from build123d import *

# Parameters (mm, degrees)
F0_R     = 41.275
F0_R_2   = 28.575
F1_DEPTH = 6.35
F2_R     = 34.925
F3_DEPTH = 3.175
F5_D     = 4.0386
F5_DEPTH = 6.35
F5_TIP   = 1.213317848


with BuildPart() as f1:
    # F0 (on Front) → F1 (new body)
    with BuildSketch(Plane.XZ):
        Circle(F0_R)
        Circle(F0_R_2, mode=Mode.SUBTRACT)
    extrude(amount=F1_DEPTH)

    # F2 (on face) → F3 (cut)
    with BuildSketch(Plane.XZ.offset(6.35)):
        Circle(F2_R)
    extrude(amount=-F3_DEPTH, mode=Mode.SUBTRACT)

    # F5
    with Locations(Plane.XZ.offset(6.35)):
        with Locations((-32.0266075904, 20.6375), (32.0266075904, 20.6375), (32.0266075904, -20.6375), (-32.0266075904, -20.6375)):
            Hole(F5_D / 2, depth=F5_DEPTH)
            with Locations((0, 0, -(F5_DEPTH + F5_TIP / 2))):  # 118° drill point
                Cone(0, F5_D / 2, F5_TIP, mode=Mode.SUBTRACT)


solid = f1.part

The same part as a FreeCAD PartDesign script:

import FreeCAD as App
import Part
import Sketcher
from FreeCAD import Vector
Q = App.Units.Quantity

doc = App.newDocument("Part")
body = doc.addObject("PartDesign::Body", "Body")

# Sketch on XZ plane
sketch1 = doc.addObject("Sketcher::SketchObject", "Sketch")
body.addObject(sketch1)
sketch1.AttachmentSupport = (doc.XZ_Plane, [""])
sketch1.MapMode = "FlatFace"
sketch1.addGeometry(Part.Circle(Vector(0, 0, 0), Vector(0, 0, 1), 41), False)
sketch1.addGeometry(Part.Circle(Vector(0, 0, 0), Vector(0, 0, 1), 29), False)
sketch1.addConstraint(Sketcher.Constraint("Coincident", 0, 3, -1, 1))
sketch1.addConstraint(Sketcher.Constraint("Coincident", 1, 3, -1, 1))
sketch1.addConstraint(Sketcher.Constraint("Diameter", 0, Q("3.25 in")))
sketch1.addConstraint(Sketcher.Constraint("Diameter", 1, Q("2.25 in")))
pad1 = doc.addObject("PartDesign::Pad", "Pad")
body.addObject(pad1)
pad1.Profile = sketch1
pad1.Length = Q("0.25 in")

# Sketch on XZ plane
sketch2 = doc.addObject("Sketcher::SketchObject", "Sketch001")
body.addObject(sketch2)
sketch2.AttachmentSupport = (doc.XZ_Plane, [""])
sketch2.MapMode = "FlatFace"
sketch2.AttachmentOffset = App.Placement(Vector(0, 0, 0.25 * 25.4), App.Rotation())
sketch2.addGeometry(Part.Circle(Vector(0, 0, 0), Vector(0, 0, 1), 35), False)
sketch2.addConstraint(Sketcher.Constraint("Coincident", 0, 3, -1, 1))
sketch2.addConstraint(Sketcher.Constraint("Diameter", 0, Q("2.75 in")))
pocket1 = doc.addObject("PartDesign::Pocket", "Pocket")
body.addObject(pocket1)
pocket1.Profile = sketch2
pocket1.Length = Q("0.125 in")

# Sketch on XZ plane
sketch3 = doc.addObject("Sketcher::SketchObject", "Sketch002")
body.addObject(sketch3)
sketch3.AttachmentSupport = (doc.XZ_Plane, [""])
sketch3.MapMode = "FlatFace"
sketch3.AttachmentOffset = App.Placement(Vector(0, 0, 0.25 * 25.4), App.Rotation())
sketch3.addGeometry(Part.Circle(Vector(-32, 20.6, 0), Vector(0, 0, 1), 2), False)
sketch3.addGeometry(Part.Circle(Vector(32, 20.6, 0), Vector(0, 0, 1), 2), False)
sketch3.addGeometry(Part.Circle(Vector(32, -20.6, 0), Vector(0, 0, 1), 2), False)
sketch3.addGeometry(Part.Circle(Vector(-32, -20.6, 0), Vector(0, 0, 1), 2), False)
sketch3.addConstraint(Sketcher.Constraint("Equal", 0, 1))
sketch3.addConstraint(Sketcher.Constraint("Equal", 1, 2))
sketch3.addConstraint(Sketcher.Constraint("Equal", 2, 3))
sketch3.addConstraint(Sketcher.Constraint("Symmetric", 0, 3, 2, 3, -1, 1))
sketch3.addConstraint(Sketcher.Constraint("Symmetric", 1, 3, 3, 3, -1, 1))
sketch3.addConstraint(Sketcher.Constraint("Symmetric", 0, 3, 1, 3, -2))
sketch3.addConstraint(Sketcher.Constraint("Diameter", 0, Q("0.159 in")))
sketch3.addConstraint(Sketcher.Constraint("DistanceY", -1, 1, 0, 3, Q("0.8125 in")))
sketch3.addConstraint(Sketcher.Constraint("DistanceX", 0, 3, -1, 1, 32.026608))
doc.recompute()
hole = doc.addObject("PartDesign::Hole", "Hole")
body.addObject(hole)
hole.Profile = sketch3
hole.ThreadType = "None"
hole.Diameter = Q("0.159 in")
hole.DepthType = "Dimension"
hole.Depth = Q("0.25 in")
hole.DrillPoint = "Angled"
hole.DrillPointAngle = 118

doc.recompute()
